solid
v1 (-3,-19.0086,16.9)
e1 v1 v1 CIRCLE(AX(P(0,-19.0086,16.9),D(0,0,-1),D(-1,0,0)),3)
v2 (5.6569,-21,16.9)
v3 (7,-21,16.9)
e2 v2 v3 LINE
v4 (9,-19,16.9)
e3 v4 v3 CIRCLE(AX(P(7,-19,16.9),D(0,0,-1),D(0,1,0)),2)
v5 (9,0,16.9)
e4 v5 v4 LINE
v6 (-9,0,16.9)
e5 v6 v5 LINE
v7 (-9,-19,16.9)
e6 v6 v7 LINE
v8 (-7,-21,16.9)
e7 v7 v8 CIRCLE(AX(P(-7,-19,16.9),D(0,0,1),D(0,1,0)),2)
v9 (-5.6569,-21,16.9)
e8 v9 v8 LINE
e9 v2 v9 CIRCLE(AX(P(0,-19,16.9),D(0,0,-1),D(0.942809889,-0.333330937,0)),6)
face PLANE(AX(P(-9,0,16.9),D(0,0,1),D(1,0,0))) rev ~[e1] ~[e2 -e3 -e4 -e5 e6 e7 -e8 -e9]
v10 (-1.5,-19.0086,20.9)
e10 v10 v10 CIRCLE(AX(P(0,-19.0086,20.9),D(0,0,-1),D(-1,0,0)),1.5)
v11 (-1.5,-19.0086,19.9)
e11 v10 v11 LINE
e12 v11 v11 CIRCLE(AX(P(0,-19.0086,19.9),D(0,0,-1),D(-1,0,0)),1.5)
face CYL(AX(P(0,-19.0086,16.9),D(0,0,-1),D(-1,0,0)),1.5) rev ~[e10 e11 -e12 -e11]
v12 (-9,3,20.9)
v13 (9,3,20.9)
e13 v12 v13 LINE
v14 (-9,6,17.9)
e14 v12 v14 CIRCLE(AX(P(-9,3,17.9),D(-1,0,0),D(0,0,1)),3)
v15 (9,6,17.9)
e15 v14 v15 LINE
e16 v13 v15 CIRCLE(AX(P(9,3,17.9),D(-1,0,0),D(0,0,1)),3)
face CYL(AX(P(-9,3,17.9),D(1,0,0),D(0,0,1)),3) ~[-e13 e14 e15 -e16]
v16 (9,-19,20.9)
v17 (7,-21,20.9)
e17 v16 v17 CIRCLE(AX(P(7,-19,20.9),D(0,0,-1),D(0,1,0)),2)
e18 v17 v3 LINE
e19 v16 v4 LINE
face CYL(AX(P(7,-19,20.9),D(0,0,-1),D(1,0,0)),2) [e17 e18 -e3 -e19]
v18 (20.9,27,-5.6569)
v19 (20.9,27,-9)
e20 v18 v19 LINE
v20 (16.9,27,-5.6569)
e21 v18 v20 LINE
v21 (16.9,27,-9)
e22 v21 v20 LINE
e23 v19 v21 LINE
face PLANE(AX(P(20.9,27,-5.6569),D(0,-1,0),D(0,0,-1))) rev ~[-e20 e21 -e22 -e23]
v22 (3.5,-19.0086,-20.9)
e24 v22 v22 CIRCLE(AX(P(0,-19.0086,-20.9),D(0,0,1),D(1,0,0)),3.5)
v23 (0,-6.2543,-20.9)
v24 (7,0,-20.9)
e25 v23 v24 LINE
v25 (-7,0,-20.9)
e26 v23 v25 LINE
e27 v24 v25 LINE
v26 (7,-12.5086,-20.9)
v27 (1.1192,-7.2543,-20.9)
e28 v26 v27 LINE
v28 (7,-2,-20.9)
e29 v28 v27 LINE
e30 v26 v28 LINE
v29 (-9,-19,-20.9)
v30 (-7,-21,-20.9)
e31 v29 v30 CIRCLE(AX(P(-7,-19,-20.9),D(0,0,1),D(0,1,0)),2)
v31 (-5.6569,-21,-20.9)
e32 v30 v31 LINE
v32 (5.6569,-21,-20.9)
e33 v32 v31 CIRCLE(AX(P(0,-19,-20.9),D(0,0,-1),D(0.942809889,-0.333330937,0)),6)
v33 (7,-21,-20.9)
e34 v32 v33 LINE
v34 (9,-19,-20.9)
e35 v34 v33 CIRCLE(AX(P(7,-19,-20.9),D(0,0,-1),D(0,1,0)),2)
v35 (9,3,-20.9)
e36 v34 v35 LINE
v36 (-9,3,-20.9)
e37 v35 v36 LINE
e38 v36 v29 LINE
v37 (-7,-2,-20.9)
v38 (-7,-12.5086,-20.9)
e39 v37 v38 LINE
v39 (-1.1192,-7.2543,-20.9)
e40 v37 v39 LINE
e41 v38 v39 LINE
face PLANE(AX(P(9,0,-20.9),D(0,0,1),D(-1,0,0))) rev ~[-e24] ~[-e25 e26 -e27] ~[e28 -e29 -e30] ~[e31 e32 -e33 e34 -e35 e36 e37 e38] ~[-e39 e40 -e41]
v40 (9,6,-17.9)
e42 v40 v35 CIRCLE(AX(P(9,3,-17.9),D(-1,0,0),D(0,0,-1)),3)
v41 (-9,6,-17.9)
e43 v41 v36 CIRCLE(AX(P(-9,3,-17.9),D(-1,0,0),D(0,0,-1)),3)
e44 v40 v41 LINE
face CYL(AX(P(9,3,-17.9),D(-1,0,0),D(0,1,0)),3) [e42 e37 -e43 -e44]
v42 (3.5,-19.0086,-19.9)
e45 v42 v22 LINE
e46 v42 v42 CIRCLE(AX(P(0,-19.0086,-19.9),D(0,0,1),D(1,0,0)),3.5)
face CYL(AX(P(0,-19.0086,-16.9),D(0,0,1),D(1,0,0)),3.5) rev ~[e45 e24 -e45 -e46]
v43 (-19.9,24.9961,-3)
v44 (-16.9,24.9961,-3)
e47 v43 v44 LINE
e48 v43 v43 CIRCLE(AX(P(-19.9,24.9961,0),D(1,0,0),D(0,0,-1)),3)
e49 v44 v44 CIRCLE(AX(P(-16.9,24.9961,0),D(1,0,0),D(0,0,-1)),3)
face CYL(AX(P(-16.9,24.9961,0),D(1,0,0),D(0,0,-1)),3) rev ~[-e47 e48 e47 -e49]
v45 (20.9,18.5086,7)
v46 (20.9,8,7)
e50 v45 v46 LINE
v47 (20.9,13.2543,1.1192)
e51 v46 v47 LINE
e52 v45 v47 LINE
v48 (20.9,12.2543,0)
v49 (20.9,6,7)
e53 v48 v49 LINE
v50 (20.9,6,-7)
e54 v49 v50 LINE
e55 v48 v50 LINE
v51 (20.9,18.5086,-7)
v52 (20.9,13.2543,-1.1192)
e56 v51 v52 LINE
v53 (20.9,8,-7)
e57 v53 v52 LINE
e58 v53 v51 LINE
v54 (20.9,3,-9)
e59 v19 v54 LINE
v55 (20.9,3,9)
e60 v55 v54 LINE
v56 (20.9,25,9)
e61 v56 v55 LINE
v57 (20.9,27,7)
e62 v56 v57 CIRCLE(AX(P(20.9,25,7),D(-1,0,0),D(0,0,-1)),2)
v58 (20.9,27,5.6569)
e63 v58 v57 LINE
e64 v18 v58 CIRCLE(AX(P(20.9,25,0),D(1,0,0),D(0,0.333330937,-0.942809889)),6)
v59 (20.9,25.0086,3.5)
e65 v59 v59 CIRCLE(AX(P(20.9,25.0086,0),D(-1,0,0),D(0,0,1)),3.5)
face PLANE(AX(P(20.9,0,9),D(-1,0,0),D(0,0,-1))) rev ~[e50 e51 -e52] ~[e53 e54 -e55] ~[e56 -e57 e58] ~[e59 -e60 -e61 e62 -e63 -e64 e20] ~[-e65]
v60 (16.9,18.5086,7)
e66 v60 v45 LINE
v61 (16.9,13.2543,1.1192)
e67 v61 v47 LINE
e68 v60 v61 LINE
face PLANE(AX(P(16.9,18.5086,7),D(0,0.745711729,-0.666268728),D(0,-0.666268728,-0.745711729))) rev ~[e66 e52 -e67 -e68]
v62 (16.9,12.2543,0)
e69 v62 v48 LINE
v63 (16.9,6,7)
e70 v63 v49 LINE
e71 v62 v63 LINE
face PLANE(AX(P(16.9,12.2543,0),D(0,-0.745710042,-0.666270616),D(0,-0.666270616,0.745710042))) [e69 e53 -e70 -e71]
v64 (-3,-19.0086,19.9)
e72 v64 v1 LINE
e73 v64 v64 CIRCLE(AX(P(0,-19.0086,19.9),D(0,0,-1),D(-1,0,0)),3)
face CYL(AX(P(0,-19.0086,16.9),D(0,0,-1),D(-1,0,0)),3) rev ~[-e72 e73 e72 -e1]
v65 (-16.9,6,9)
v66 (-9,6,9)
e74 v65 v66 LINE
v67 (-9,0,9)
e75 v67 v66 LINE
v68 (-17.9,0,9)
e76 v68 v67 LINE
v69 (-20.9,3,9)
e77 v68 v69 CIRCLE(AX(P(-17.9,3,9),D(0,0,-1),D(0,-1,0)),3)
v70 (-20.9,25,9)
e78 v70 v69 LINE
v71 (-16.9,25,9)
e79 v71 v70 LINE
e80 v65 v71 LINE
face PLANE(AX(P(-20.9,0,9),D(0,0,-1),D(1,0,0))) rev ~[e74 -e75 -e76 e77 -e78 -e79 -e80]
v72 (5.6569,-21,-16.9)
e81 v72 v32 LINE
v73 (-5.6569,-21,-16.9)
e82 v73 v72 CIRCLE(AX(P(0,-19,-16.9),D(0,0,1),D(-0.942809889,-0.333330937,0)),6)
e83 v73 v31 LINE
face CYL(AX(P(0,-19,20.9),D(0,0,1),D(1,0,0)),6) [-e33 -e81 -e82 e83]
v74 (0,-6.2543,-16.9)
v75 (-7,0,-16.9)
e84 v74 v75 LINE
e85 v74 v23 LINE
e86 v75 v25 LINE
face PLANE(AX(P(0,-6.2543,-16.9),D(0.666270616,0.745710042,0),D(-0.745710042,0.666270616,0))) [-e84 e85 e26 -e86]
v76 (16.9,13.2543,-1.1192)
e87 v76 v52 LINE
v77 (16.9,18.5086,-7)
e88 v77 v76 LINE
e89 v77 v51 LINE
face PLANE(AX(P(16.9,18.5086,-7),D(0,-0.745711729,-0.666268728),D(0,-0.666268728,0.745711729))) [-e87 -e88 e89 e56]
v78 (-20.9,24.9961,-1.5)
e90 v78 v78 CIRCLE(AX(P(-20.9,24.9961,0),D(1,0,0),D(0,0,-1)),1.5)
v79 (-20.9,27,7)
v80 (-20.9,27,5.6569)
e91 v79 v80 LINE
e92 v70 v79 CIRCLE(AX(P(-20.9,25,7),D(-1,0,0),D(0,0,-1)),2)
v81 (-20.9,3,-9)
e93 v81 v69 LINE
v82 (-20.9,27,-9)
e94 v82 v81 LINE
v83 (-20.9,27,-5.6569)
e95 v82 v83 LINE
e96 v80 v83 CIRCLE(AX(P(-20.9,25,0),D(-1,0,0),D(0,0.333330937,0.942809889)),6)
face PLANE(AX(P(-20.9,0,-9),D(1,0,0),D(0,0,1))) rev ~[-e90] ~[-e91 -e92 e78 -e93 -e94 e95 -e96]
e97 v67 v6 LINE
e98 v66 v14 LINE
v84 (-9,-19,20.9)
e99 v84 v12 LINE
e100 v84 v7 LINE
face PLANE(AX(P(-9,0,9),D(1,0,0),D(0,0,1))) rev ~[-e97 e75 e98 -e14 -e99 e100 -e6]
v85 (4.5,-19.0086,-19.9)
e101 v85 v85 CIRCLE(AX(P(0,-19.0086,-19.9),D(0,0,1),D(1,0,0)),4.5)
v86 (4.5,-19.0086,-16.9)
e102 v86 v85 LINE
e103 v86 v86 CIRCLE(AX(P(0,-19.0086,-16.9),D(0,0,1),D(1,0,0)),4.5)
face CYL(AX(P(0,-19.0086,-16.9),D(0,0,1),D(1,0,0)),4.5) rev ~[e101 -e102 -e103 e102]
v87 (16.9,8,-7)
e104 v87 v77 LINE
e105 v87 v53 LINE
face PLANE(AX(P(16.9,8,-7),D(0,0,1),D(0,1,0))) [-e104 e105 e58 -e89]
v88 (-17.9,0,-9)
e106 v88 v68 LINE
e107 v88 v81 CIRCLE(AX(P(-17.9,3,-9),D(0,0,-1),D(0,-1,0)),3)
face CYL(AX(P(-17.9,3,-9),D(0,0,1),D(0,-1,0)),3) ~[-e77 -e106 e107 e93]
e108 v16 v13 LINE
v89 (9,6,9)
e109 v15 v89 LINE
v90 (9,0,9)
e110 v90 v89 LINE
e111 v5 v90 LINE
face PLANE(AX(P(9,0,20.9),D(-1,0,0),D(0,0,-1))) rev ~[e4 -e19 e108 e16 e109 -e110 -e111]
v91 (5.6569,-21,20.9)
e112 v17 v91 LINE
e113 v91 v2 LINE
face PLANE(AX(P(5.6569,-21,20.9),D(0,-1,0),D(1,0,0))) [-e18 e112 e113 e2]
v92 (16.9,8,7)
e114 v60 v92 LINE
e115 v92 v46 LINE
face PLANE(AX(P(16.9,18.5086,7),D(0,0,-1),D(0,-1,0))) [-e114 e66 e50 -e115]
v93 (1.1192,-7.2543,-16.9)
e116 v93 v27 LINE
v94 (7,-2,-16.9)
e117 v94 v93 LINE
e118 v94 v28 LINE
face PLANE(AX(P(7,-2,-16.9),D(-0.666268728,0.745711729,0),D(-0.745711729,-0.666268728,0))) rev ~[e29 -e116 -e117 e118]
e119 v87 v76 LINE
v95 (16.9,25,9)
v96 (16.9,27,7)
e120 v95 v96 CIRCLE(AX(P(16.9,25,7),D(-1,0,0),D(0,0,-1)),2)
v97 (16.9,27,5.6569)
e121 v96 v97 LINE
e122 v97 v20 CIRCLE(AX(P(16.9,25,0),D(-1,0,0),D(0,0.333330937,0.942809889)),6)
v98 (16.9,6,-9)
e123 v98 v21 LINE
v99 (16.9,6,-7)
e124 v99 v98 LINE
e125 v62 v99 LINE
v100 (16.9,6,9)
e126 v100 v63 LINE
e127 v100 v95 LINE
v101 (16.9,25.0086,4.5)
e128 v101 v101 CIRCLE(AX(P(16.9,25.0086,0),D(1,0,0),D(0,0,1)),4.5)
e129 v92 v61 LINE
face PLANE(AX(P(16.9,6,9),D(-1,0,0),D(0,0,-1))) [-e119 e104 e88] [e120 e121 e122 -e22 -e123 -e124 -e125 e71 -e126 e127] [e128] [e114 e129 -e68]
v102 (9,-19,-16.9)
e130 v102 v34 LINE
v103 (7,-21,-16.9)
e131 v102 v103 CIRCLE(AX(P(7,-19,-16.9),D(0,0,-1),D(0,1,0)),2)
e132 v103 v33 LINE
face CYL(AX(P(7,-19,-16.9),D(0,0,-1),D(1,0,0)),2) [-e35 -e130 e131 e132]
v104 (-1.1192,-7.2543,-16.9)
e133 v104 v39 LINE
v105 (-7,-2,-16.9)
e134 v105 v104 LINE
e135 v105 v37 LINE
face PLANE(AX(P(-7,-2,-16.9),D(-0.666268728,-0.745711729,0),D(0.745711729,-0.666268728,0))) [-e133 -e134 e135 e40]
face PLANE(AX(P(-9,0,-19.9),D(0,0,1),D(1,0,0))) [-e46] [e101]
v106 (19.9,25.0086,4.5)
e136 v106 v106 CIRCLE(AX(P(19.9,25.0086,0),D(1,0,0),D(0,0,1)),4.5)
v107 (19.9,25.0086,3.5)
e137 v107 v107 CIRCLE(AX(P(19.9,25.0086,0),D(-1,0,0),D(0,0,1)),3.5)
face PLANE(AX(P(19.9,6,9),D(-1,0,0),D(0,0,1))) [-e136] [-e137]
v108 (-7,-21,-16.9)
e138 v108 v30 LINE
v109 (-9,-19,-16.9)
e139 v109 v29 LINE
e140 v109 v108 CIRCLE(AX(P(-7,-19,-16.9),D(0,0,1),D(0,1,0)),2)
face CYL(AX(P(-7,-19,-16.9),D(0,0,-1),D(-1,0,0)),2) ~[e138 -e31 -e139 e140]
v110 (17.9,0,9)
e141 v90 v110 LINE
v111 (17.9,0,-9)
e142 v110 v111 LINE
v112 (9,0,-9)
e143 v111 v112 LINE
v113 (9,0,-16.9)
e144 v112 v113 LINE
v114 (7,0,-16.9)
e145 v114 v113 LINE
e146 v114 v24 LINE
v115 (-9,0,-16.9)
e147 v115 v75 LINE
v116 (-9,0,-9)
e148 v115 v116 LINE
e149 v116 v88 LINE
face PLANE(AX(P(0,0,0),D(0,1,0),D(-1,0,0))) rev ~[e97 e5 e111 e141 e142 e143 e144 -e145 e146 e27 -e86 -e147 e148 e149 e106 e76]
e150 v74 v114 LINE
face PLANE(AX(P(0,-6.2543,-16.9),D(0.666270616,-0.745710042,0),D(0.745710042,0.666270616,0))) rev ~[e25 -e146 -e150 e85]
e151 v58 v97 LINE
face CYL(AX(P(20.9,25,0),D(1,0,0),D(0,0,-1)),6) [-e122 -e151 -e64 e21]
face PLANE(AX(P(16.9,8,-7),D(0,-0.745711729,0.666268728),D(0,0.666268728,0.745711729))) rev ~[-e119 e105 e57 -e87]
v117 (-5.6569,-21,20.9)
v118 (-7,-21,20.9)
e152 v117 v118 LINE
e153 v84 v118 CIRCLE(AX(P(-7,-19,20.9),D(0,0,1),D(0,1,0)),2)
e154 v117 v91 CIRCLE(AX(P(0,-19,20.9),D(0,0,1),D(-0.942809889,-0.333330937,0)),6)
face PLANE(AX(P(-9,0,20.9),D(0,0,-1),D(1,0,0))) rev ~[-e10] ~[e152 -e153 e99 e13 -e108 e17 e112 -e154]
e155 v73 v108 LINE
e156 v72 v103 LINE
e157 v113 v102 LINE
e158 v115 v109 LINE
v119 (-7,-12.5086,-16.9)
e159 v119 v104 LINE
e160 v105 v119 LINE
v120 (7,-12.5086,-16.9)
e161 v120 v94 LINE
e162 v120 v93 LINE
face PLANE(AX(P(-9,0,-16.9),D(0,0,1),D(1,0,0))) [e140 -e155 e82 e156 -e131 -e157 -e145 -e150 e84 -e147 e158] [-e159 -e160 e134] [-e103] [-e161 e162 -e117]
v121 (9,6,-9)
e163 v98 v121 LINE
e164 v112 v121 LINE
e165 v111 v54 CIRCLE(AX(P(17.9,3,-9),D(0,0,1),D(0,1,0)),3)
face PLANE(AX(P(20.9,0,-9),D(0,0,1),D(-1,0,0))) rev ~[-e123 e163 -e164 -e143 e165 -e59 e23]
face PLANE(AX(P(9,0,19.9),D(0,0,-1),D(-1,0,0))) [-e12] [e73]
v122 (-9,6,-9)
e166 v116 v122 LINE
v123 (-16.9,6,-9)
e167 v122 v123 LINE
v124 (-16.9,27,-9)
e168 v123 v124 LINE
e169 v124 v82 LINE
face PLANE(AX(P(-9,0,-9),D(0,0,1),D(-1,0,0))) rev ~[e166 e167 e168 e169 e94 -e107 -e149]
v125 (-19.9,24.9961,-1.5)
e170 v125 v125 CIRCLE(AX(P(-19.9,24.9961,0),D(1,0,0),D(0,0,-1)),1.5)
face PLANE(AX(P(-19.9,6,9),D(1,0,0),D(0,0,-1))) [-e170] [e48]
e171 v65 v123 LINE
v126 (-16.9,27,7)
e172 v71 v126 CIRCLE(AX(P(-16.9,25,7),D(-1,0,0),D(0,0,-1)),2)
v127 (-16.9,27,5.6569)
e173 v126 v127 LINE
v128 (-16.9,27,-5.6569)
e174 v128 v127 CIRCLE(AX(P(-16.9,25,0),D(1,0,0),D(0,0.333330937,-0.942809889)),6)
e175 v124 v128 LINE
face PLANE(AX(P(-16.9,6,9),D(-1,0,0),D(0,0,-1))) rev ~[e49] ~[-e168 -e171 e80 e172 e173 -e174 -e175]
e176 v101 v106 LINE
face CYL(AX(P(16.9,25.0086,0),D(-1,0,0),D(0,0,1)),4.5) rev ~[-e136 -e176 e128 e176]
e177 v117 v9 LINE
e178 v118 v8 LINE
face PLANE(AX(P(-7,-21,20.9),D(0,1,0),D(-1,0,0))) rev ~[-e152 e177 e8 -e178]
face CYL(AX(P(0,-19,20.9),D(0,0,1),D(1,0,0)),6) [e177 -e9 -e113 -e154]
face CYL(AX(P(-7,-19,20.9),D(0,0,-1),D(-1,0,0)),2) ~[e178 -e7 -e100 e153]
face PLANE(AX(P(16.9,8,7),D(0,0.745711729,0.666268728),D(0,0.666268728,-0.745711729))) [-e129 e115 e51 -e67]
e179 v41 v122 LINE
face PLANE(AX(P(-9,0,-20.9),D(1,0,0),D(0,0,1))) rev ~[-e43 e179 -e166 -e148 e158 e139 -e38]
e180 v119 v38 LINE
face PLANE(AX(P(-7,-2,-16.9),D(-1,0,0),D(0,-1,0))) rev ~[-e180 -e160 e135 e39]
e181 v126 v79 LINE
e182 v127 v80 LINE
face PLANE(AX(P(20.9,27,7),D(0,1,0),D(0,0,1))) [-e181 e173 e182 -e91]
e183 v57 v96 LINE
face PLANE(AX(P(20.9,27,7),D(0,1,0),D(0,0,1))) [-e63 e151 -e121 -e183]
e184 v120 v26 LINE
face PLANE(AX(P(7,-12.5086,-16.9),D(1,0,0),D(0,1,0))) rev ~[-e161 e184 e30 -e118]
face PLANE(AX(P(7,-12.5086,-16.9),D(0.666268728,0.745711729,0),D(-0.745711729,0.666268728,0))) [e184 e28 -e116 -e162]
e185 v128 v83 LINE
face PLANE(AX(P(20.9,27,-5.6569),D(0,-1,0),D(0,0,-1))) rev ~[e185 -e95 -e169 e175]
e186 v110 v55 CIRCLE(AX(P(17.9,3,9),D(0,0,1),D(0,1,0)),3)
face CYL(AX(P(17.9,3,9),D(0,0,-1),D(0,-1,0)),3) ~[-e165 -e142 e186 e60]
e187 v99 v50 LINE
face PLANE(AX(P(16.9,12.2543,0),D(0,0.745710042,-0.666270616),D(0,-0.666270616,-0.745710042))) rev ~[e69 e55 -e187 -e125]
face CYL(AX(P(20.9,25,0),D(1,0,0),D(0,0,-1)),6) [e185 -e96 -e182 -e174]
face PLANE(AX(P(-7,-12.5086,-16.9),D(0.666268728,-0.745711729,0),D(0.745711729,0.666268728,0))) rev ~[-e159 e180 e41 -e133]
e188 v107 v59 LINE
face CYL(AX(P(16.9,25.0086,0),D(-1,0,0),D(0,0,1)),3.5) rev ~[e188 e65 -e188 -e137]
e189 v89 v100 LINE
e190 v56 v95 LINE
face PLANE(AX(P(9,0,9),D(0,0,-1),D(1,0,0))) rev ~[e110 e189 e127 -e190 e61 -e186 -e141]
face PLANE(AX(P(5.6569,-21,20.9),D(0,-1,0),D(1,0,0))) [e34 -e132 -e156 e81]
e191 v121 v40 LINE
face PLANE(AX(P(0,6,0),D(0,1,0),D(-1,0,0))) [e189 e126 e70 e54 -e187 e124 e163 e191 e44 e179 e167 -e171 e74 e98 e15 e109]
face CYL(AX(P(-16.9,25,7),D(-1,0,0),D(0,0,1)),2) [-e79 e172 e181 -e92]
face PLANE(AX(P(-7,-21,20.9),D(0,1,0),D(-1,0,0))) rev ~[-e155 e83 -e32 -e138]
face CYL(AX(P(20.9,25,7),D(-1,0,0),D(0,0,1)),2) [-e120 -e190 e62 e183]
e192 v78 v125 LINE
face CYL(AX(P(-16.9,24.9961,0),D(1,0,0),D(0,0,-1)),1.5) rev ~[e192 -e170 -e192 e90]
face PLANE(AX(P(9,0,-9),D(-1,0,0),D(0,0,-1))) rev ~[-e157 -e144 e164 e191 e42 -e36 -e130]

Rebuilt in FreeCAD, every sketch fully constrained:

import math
import FreeCAD as App
import Part
import Sketcher

V = App.Vector
Q = App.Units.Quantity


def edges_at(feature, points):
    """Names of the edges that pass closest to the given points."""
    edges = feature.Shape.Edges
    near = lambda p: min(range(len(edges)), key=lambda i: edges[i].distToShape(Part.Vertex(*p))[0])
    return sorted({f"Edge{near(p) + 1}" for p in points})


def add_polygon(sketch, points):
    """Adds a closed chain of lines whose ends are joined by coincident constraints."""
    first, n = sketch.GeometryCount, len(points)
    for a, b in zip(points, points[1:] + points[:1]):
        sketch.addGeometry(Part.LineSegment(App.Vector(*a, 0), App.Vector(*b, 0)), False)
    for i in range(n):
        sketch.addConstraint(Sketcher.Constraint("Coincident", first + i, 2, first + (i + 1) % n, 1))

doc = App.newDocument("Part")
body = doc.addObject("PartDesign::Body", "Body")

sketch1 = body.newObject("Sketcher::SketchObject", "Sketch")
sketch1.AttachmentSupport = (doc.getObject("XZ_Plane"), [""])
sketch1.MapMode = "FlatFace"
add_polygon(sketch1, [(-9, 9), (-9, 20.9), (9, 20.9), (9, 9), (20.9, 9), (20.9, -9), (9, -9), (9, -20.9), (-9, -20.9), (-9, -9), (-20.9, -9), (-20.9, 9)])
sketch1.addConstraint([
    Sketcher.Constraint("Vertical", 0),
    Sketcher.Constraint("Horizontal", 1),
    Sketcher.Constraint("Vertical", 2),
    Sketcher.Constraint("Horizontal", 3),
    Sketcher.Constraint("Vertical", 4),
    Sketcher.Constraint("Horizontal", 5),
    Sketcher.Constraint("Vertical", 6),
    Sketcher.Constraint("Horizontal", 7),
    Sketcher.Constraint("Vertical", 8),
    Sketcher.Constraint("Horizontal", 9),
    Sketcher.Constraint("Vertical", 10),
    Sketcher.Constraint("Horizontal", 11),
    Sketcher.Constraint("Symmetric", 0, 2, 6, 2, -1, 1),
    Sketcher.Constraint("Symmetric", 2, 2, 8, 2, -1, 1),
    Sketcher.Constraint("Symmetric", 4, 2, 10, 2, -1, 1),
    Sketcher.Constraint("Symmetric", 5, 2, 8, 2, -2),
    Sketcher.Constraint("Equal", 11, 0),
    Sketcher.Constraint("Equal", 7, 4),
    Sketcher.Constraint("DistanceX", 1, 1, 1, 2, Q("18 mm")),
    Sketcher.Constraint("DistanceY", 6, 2, 1, 2, Q("41.8 mm")),
])
pad1 = body.newObject("PartDesign::Pad", "Pad")
pad1.Profile = sketch1
pad1.Length = 6
pad1.Reversed = True

sketch2 = body.newObject("Sketcher::SketchObject", "Sketch001")
sketch2.AttachmentSupport = (doc.getObject("XZ_Plane"), [""])
sketch2.MapMode = "FlatFace"
sketch2.AttachmentOffset = App.Placement(V(0, 0, -6), App.Rotation())
add_polygon(sketch2, [(-20.9, -9), (-20.9, 9), (-16.9, 9), (-16.9, -9)])
add_polygon(sketch2, [(16.9, 9), (20.9, 9), (20.9, -9), (16.9, -9)])
sketch2.addConstraint([
    Sketcher.Constraint("Vertical", 0),
    Sketcher.Constraint("Horizontal", 1),
    Sketcher.Constraint("Vertical", 2),
    Sketcher.Constraint("Horizontal", 3),
    Sketcher.Constraint("Horizontal", 4),
    Sketcher.Constraint("Vertical", 5),
    Sketcher.Constraint("Horizontal", 6),
    Sketcher.Constraint("Vertical", 7),
    Sketcher.Constraint("Symmetric", 3, 2, 4, 2, -1, 1),
    Sketcher.Constraint("Symmetric", 1, 2, 6, 2, -1, 1),
    Sketcher.Constraint("Horizontal", 1, 2, 4, 2),
    Sketcher.Constraint("DistanceX", 1, 1, 1, 2, Q("4 mm")),
    Sketcher.Constraint("DistanceY", 0, 1, 0, 2, Q("18 mm")),
    Sketcher.Constraint("DistanceX", 0, 2, -1, 1, Q("20.9 mm")),
])
pad2 = body.newObject("PartDesign::Pad", "Pad001")
pad2.Profile = sketch2
pad2.Length = 25
pad2.Reversed = True

sketch3 = body.newObject("Sketcher::SketchObject", "Sketch002")
sketch3.AttachmentSupport = (doc.getObject("XZ_Plane"), [""])
sketch3.MapMode = "FlatFace"
add_polygon(sketch3, [(9, 20.9), (-9, 20.9), (-9, 16.9), (9, 16.9)])
add_polygon(sketch3, [(9, -20.9), (9, -16.9), (-9, -16.9), (-9, -20.9)])
sketch3.addConstraint([
    Sketcher.Constraint("Horizontal", 0),
    Sketcher.Constraint("Vertical", 1),
    Sketcher.Constraint("Horizontal", 2),
    Sketcher.Constraint("Vertical", 3),
    Sketcher.Constraint("Vertical", 4),
    Sketcher.Constraint("Horizontal", 5),
    Sketcher.Constraint("Vertical", 6),
    Sketcher.Constraint("Horizontal", 7),
    Sketcher.Constraint("Symmetric", 1, 2, 4, 2, -1, 1),
    Sketcher.Constraint("Symmetric", 3, 2, 6, 2, -1, 1),
    Sketcher.Constraint("Vertical", 3, 2, 4, 2),
    Sketcher.Constraint("DistanceY", 1, 2, 1, 1, Q("4 mm")),
    Sketcher.Constraint("DistanceX", 0, 2, 0, 1, Q("18 mm")),
    Sketcher.Constraint("DistanceY", -1, 1, 0, 2, Q("20.9 mm")),
])
pad3 = body.newObject("PartDesign::Pad", "Pad002")
pad3.Profile = sketch3
pad3.Length = 25

sketch4 = body.newObject("Sketcher::SketchObject", "Sketch003")
sketch4.AttachmentSupport = (doc.getObject("YZ_Plane"), [""])
sketch4.MapMode = "FlatFace"
sketch4.AttachmentOffset = App.Placement(V(0, 0, 20.9), App.Rotation())
sketch4.addGeometry([
    Part.LineSegment(V(31, 9, 0), V(27, 9, 0)),
    Part.LineSegment(V(27, 9, 0), V(27, 5.6569, 0)),
    Part.ArcOfCircle(Part.Circle(V(25, 0, 0), V(0, 0, 1), 6), math.radians(0), math.radians(70.528925)),
    Part.LineSegment(V(31, 0, 0), V(31, 9, 0)),
    Part.LineSegment(V(31, -9, 0), V(31, 0, 0)),
    Part.ArcOfCircle(Part.Circle(V(25, 0, 0), V(0, 0, 1), 6), math.radians(-70.528925), math.radians(0)),
    Part.LineSegment(V(27, -5.6569, 0), V(27, -9, 0)),
    Part.LineSegment(V(27, -9, 0), V(31, -9, 0)),
], False)
sketch4.addConstraint([
    Sketcher.Constraint("Coincident", 0, 2, 1, 1),
    Sketcher.Constraint("Coincident", 1, 2, 2, 2),
    Sketcher.Constraint("Tangent", 2, 1, 3, 1),
    Sketcher.Constraint("Coincident", 3, 2, 0, 1),
    Sketcher.Constraint("Tangent", 4, 2, 5, 2),
    Sketcher.Constraint("Coincident", 5, 1, 6, 1),
    Sketcher.Constraint("Coincident", 6, 2, 7, 1),
    Sketcher.Constraint("Coincident", 7, 2, 4, 1),
    Sketcher.Constraint("Horizontal", 0),
    Sketcher.Constraint("Vertical", 1),
    Sketcher.Constraint("Vertical", 3),
    Sketcher.Constraint("Vertical", 4),
    Sketcher.Constraint("Vertical", 6),
    Sketcher.Constraint("Horizontal", 7),
    Sketcher.Constraint("Coincident", 5, 3, 2, 3),
    Sketcher.Constraint("Equal", 2, 5),
    Sketcher.Constraint("Symmetric", 1, 2, 5, 1, -1),
    Sketcher.Constraint("Equal", 3, 4),
    Sketcher.Constraint("Radius", 2, Q("6 mm")),
    Sketcher.Constraint("DistanceX", -1, 1, 2, 3, Q("25 mm")),
    Sketcher.Constraint("DistanceX", 2, 3, 0, 2, Q("2 mm")),
    Sketcher.Constraint("DistanceY", 3, 1, 3, 2, Q("9 mm")),
])
pocket1 = body.newObject("PartDesign::Pocket", "Pocket")
pocket1.Profile = sketch4
pocket1.Length = 41.8

sketch5 = body.newObject("Sketcher::SketchObject", "Sketch004")
sketch5.AttachmentSupport = (doc.getObject("XY_Plane"), [""])
sketch5.MapMode = "FlatFace"
sketch5.AttachmentOffset = App.Placement(V(0, 0, 20.9), App.Rotation())
sketch5.addGeometry([
    Part.LineSegment(V(0, -25, 0), V(9, -25, 0)),
    Part.LineSegment(V(9, -25, 0), V(9, -21, 0)),
    Part.LineSegment(V(9, -21, 0), V(5.6569, -21, 0)),
    Part.ArcOfCircle(Part.Circle(V(0, -19, 0), V(0, 0, 1), 6), math.radians(-90), math.radians(-19.471075)),
    Part.LineSegment(V(-9, -25, 0), V(0, -25, 0)),
    Part.ArcOfCircle(Part.Circle(V(0, -19, 0), V(0, 0, 1), 6), math.radians(-160.528925), math.radians(-90)),
    Part.LineSegment(V(-5.6569, -21, 0), V(-9, -21, 0)),
    Part.LineSegment(V(-9, -21, 0), V(-9, -25, 0)),
], False)
sketch5.addConstraint([
    Sketcher.Constraint("Coincident", 0, 2, 1, 1),
    Sketcher.Constraint("Coincident", 1, 2, 2, 1),
    Sketcher.Constraint("Coincident", 2, 2, 3, 2),
    Sketcher.Constraint("Tangent", 3, 1, 0, 1),
    Sketcher.Constraint("Tangent", 4, 2, 5, 2),
    Sketcher.Constraint("Coincident", 5, 1, 6, 1),
    Sketcher.Constraint("Coincident", 6, 2, 7, 1),
    Sketcher.Constraint("Coincident", 7, 2, 4, 1),
    Sketcher.Constraint("Horizontal", 0),
    Sketcher.Constraint("Vertical", 1),
    Sketcher.Constraint("Horizontal", 2),
    Sketcher.Constraint("Horizontal", 4),
    Sketcher.Constraint("Horizontal", 6),
    Sketcher.Constraint("Vertical", 7),
    Sketcher.Constraint("Coincident", 5, 3, 3, 3),
    Sketcher.Constraint("Equal", 3, 5),
    Sketcher.Constraint("Symmetric", 2, 2, 5, 1, -2),
    Sketcher.Constraint("Equal", 0, 4),
    Sketcher.Constraint("Radius", 3, Q("6 mm")),
    Sketcher.Constraint("DistanceX", 0, 1, 0, 2, Q("9 mm")),
    Sketcher.Constraint("DistanceY", 1, 1, 1, 2, Q("4 mm")),
    Sketcher.Constraint("DistanceY", 3, 3, -1, 1, Q("19 mm")),
])
pocket2 = body.newObject("PartDesign::Pocket", "Pocket001")
pocket2.Profile = sketch5
pocket2.Length = 41.8

sketch6 = body.newObject("Sketcher::SketchObject", "Sketch005")
sketch6.AttachmentSupport = (doc.getObject("YZ_Plane"), [""])
sketch6.MapMode = "FlatFace"
sketch6.AttachmentOffset = App.Placement(V(0, 0, -16.9), App.Rotation())
sketch6.addGeometry(Part.Circle(V(24.9961, 0, 0), V(0, 0, 1), 1.5), False)
sketch6.addConstraint([
    Sketcher.Constraint("PointOnObject", 0, 3, -1),
    Sketcher.Constraint("Diameter", 0, Q("3 mm")),
    Sketcher.Constraint("DistanceX", -1, 1, 0, 3, Q("24.996 mm")),
])
pocket3 = body.newObject("PartDesign::Pocket", "Pocket002")
pocket3.Profile = sketch6
pocket3.Type = "TwoLengths"
pocket3.Length = 4
pocket3.Length2 = 4

sketch7 = body.newObject("Sketcher::SketchObject", "Sketch006")
sketch7.AttachmentSupport = (doc.getObject("YZ_Plane"), [""])
sketch7.MapMode = "FlatFace"
sketch7.AttachmentOffset = App.Placement(V(0, 0, -16.9), App.Rotation())
sketch7.addGeometry([
    Part.Circle(V(24.9961, 0, 0), V(0, 0, 1), 3),
    Part.Circle(V(24.9961, 0, 0), V(0, 0, 1), 1.5),
], False)
sketch7.addConstraint([
    Sketcher.Constraint("Coincident", 1, 3, 0, 3),
    Sketcher.Constraint("PointOnObject", 0, 3, -1),
    Sketcher.Constraint("Diameter", 0, Q("6 mm")),
    Sketcher.Constraint("Diameter", 1, Q("3 mm")),
    Sketcher.Constraint("DistanceX", -1, 1, 0, 3, Q("24.996 mm")),
])
pocket4 = body.newObject("PartDesign::Pocket", "Pocket003")
pocket4.Profile = sketch7
pocket4.Type = "TwoLengths"
pocket4.Length = 3
pocket4.Length2 = 3

sketch8 = body.newObject("Sketcher::SketchObject", "Sketch007")
sketch8.AttachmentSupport = (doc.getObject("XY_Plane"), [""])
sketch8.MapMode = "FlatFace"
sketch8.AttachmentOffset = App.Placement(V(0, 0, 16.9), App.Rotation())
sketch8.addGeometry([
    Part.Circle(V(0, -19.0086, 0), V(0, 0, 1), 3),
    Part.Circle(V(0, -19.0086, 0), V(0, 0, 1), 1.5),
], False)
sketch8.addConstraint([
    Sketcher.Constraint("Coincident", 1, 3, 0, 3),
    Sketcher.Constraint("PointOnObject", 0, 3, -2),
    Sketcher.Constraint("Diameter", 0, Q("6 mm")),
    Sketcher.Constraint("Diameter", 1, Q("3 mm")),
    Sketcher.Constraint("DistanceY", 0, 3, -1, 1, Q("19.0086 mm")),
])
pocket5 = body.newObject("PartDesign::Pocket", "Pocket004")
pocket5.Profile = sketch8
pocket5.Type = "TwoLengths"
pocket5.Length = 3
pocket5.Length2 = 3
pocket5.Reversed = True

sketch9 = body.newObject("Sketcher::SketchObject", "Sketch008")
sketch9.AttachmentSupport = (doc.getObject("XY_Plane"), [""])
sketch9.MapMode = "FlatFace"
sketch9.AttachmentOffset = App.Placement(V(0, 0, 16.9), App.Rotation())
sketch9.addGeometry(Part.Circle(V(0, -19.0086, 0), V(0, 0, 1), 1.5), False)
sketch9.addConstraint([
    Sketcher.Constraint("PointOnObject", 0, 3, -2),
    Sketcher.Constraint("Diameter", 0, Q("3 mm")),
    Sketcher.Constraint("DistanceY", 0, 3, -1, 1, Q("19.0086 mm")),
])
pocket6 = body.newObject("PartDesign::Pocket", "Pocket005")
pocket6.Profile = sketch9
pocket6.Type = "ThroughAll"
pocket6.Midplane = True

sketch10 = body.newObject("Sketcher::SketchObject", "Sketch009")
sketch10.AttachmentSupport = (doc.getObject("XY_Plane"), [""])
sketch10.MapMode = "FlatFace"
sketch10.AttachmentOffset = App.Placement(V(0, 0, -16.9), App.Rotation())
sketch10.addGeometry(Part.Circle(V(0, -19.0086, 0), V(0, 0, 1), 3.5), False)
sketch10.addConstraint([
    Sketcher.Constraint("PointOnObject", 0, 3, -2),
    Sketcher.Constraint("Diameter", 0, Q("7 mm")),
    Sketcher.Constraint("DistanceY", 0, 3, -1, 1, Q("19.0086 mm")),
])
pocket7 = body.newObject("PartDesign::Pocket", "Pocket006")
pocket7.Profile = sketch10
pocket7.Length = 4

sketch11 = body.newObject("Sketcher::SketchObject", "Sketch010")
sketch11.AttachmentSupport = (doc.getObject("XY_Plane"), [""])
sketch11.MapMode = "FlatFace"
sketch11.AttachmentOffset = App.Placement(V(0, 0, -16.9), App.Rotation())
sketch11.addGeometry([
    Part.Circle(V(0, -19.0086, 0), V(0, 0, 1), 4.5),
    Part.Circle(V(0, -19.0086, 0), V(0, 0, 1), 3.5),
], False)
sketch11.addConstraint([
    Sketcher.Constraint("Coincident", 1, 3, 0, 3),
    Sketcher.Constraint("PointOnObject", 0, 3, -2),
    Sketcher.Constraint("Diameter", 0, Q("9 mm")),
    Sketcher.Constraint("Diameter", 1, Q("7 mm")),
    Sketcher.Constraint("DistanceY", 0, 3, -1, 1, Q("19.0086 mm")),
])
pocket8 = body.newObject("PartDesign::Pocket", "Pocket007")
pocket8.Profile = sketch11
pocket8.Length = 3

sketch12 = body.newObject("Sketcher::SketchObject", "Sketch011")
sketch12.AttachmentSupport = (doc.getObject("XY_Plane"), [""])
sketch12.MapMode = "FlatFace"
sketch12.AttachmentOffset = App.Placement(V(0, 0, -16.9), App.Rotation())
add_polygon(sketch12, [(0, -6.2543), (7, 0), (-7, 0)])
add_polygon(sketch12, [(-1.1192, -7.2543), (-7, -2), (-7, -12.5086)])
add_polygon(sketch12, [(1.1192, -7.2543), (7, -12.5086), (7, -2)])
sketch12.addConstraint([
    Sketcher.Constraint("Horizontal", 1),
    Sketcher.Constraint("Vertical", 4),
    Sketcher.Constraint("Vertical", 7),
    Sketcher.Constraint("Symmetric", 0, 2, 1, 2, -1, 1),
    Sketcher.Constraint("Symmetric", 4, 2, 6, 2, -2),
    Sketcher.Constraint("Symmetric", 5, 2, 8, 2, -2),
    Sketcher.Constraint("PointOnObject", 2, 2, -2),
    Sketcher.Constraint("Parallel", 2, 3),
    Sketcher.Constraint("Parallel", 0, 5),
    Sketcher.Constraint("Parallel", 5, 8),
    Sketcher.Constraint("Vertical", 1, 2, 3, 2),
    Sketcher.Constraint("DistanceX", -1, 1, 0, 2, Q("7 mm")),
    Sketcher.Constraint("DistanceY", 3, 2, -1, 1, Q("2 mm")),
    Sketcher.Constraint("DistanceY", 5, 2, 2, 2, Q("1 mm")),
    Sketcher.Constraint("Angle", 0, Q("41.7799 deg")),
])
pocket9 = body.newObject("PartDesign::Pocket", "Pocket008")
pocket9.Profile = sketch12
pocket9.Length = 4

sketch13 = body.newObject("Sketcher::SketchObject", "Sketch012")
sketch13.AttachmentSupport = (doc.getObject("YZ_Plane"), [""])
sketch13.MapMode = "FlatFace"
sketch13.AttachmentOffset = App.Placement(V(0, 0, 16.9), App.Rotation())
add_polygon(sketch13, [(6, -7), (6, 7), (12.2543, 0)])
sketch13.addGeometry(Part.Circle(V(25.0086, 0, 0), V(0, 0, 1), 3.5), False)
add_polygon(sketch13, [(18.5086, -7), (8, -7), (13.2543, -1.1192)])
add_polygon(sketch13, [(8, 7), (18.5086, 7), (13.2543, 1.1192)])
sketch13.addConstraint([
    Sketcher.Constraint("Vertical", 0),
    Sketcher.Constraint("Horizontal", 4),
    Sketcher.Constraint("Horizontal", 7),
    Sketcher.Constraint("Symmetric", 6, 2, 7, 2, -1),
    Sketcher.Constraint("Symmetric", 5, 2, 8, 2, -1),
    Sketcher.Constraint("PointOnObject", 3, 3, -1),
    Sketcher.Constraint("PointOnObject", 1, 2, -1),
    Sketcher.Constraint("Parallel", 2, 5),
    Sketcher.Constraint("Parallel", 1, 6),
    Sketcher.Constraint("Parallel", 5, 8),
    Sketcher.Constraint("Parallel", 6, 9),
    Sketcher.Constraint("Horizontal", 2, 2, 4, 2),
    Sketcher.Constraint("Diameter", 3, Q("7 mm")),
    Sketcher.Constraint("DistanceX", 2, 2, 4, 2, Q("2 mm")),
    Sketcher.Constraint("DistanceY", 0, 1, 0, 2, Q("14 mm")),
    Sketcher.Constraint("DistanceX", -1, 1, 0, 2, Q("6 mm")),
    Sketcher.Constraint("DistanceX", 1, 2, 5, 2, Q("1 mm")),
    Sketcher.Constraint("Angle", 1, Q("-48.2201 deg")),
    Sketcher.Constraint("DistanceX", 6, 2, 3, 3, Q("6.5 mm")),
])
pocket10 = body.newObject("PartDesign::Pocket", "Pocket009")
pocket10.Profile = sketch13
pocket10.Length = 4
pocket10.Reversed = True

sketch14 = body.newObject("Sketcher::SketchObject", "Sketch013")
sketch14.AttachmentSupport = (doc.getObject("YZ_Plane"), [""])
sketch14.MapMode = "FlatFace"
sketch14.AttachmentOffset = App.Placement(V(0, 0, 16.9), App.Rotation())
sketch14.addGeometry([
    Part.Circle(V(25.0086, 0, 0), V(0, 0, 1), 4.5),
    Part.Circle(V(25.0086, 0, 0), V(0, 0, 1), 3.5),
], False)
sketch14.addConstraint([
    Sketcher.Constraint("Coincident", 1, 3, 0, 3),
    Sketcher.Constraint("PointOnObject", 0, 3, -1),
    Sketcher.Constraint("Diameter", 0, Q("9 mm")),
    Sketcher.Constraint("Diameter", 1, Q("7 mm")),
    Sketcher.Constraint("DistanceX", -1, 1, 0, 3, Q("25.0086 mm")),
])
pocket11 = body.newObject("PartDesign::Pocket", "Pocket010")
pocket11.Profile = sketch14
pocket11.Length = 3
pocket11.Reversed = True
doc.recompute()

fillet = body.newObject("PartDesign::Fillet", "Fillet")
fillet.Base = (pocket11, edges_at(pocket11, [
    (-9, -21, 18.9),
    (9, -21, 18.9),
    (-9, -21, -18.9),
    (9, -21, -18.9),
    (18.9, 27, 9),
    (-18.9, 27, 9),
]))
fillet.Radius = 2
doc.recompute()

fillet2 = body.newObject("PartDesign::Fillet", "Fillet001")
fillet2.Base = (fillet, edges_at(fillet, [
    (0, 6, 20.9),
    (0, 6, -20.9),
    (20.9, 0, 0),
    (-20.9, 0, 0),
]))
fillet2.Radius = 3

doc.recompute()
